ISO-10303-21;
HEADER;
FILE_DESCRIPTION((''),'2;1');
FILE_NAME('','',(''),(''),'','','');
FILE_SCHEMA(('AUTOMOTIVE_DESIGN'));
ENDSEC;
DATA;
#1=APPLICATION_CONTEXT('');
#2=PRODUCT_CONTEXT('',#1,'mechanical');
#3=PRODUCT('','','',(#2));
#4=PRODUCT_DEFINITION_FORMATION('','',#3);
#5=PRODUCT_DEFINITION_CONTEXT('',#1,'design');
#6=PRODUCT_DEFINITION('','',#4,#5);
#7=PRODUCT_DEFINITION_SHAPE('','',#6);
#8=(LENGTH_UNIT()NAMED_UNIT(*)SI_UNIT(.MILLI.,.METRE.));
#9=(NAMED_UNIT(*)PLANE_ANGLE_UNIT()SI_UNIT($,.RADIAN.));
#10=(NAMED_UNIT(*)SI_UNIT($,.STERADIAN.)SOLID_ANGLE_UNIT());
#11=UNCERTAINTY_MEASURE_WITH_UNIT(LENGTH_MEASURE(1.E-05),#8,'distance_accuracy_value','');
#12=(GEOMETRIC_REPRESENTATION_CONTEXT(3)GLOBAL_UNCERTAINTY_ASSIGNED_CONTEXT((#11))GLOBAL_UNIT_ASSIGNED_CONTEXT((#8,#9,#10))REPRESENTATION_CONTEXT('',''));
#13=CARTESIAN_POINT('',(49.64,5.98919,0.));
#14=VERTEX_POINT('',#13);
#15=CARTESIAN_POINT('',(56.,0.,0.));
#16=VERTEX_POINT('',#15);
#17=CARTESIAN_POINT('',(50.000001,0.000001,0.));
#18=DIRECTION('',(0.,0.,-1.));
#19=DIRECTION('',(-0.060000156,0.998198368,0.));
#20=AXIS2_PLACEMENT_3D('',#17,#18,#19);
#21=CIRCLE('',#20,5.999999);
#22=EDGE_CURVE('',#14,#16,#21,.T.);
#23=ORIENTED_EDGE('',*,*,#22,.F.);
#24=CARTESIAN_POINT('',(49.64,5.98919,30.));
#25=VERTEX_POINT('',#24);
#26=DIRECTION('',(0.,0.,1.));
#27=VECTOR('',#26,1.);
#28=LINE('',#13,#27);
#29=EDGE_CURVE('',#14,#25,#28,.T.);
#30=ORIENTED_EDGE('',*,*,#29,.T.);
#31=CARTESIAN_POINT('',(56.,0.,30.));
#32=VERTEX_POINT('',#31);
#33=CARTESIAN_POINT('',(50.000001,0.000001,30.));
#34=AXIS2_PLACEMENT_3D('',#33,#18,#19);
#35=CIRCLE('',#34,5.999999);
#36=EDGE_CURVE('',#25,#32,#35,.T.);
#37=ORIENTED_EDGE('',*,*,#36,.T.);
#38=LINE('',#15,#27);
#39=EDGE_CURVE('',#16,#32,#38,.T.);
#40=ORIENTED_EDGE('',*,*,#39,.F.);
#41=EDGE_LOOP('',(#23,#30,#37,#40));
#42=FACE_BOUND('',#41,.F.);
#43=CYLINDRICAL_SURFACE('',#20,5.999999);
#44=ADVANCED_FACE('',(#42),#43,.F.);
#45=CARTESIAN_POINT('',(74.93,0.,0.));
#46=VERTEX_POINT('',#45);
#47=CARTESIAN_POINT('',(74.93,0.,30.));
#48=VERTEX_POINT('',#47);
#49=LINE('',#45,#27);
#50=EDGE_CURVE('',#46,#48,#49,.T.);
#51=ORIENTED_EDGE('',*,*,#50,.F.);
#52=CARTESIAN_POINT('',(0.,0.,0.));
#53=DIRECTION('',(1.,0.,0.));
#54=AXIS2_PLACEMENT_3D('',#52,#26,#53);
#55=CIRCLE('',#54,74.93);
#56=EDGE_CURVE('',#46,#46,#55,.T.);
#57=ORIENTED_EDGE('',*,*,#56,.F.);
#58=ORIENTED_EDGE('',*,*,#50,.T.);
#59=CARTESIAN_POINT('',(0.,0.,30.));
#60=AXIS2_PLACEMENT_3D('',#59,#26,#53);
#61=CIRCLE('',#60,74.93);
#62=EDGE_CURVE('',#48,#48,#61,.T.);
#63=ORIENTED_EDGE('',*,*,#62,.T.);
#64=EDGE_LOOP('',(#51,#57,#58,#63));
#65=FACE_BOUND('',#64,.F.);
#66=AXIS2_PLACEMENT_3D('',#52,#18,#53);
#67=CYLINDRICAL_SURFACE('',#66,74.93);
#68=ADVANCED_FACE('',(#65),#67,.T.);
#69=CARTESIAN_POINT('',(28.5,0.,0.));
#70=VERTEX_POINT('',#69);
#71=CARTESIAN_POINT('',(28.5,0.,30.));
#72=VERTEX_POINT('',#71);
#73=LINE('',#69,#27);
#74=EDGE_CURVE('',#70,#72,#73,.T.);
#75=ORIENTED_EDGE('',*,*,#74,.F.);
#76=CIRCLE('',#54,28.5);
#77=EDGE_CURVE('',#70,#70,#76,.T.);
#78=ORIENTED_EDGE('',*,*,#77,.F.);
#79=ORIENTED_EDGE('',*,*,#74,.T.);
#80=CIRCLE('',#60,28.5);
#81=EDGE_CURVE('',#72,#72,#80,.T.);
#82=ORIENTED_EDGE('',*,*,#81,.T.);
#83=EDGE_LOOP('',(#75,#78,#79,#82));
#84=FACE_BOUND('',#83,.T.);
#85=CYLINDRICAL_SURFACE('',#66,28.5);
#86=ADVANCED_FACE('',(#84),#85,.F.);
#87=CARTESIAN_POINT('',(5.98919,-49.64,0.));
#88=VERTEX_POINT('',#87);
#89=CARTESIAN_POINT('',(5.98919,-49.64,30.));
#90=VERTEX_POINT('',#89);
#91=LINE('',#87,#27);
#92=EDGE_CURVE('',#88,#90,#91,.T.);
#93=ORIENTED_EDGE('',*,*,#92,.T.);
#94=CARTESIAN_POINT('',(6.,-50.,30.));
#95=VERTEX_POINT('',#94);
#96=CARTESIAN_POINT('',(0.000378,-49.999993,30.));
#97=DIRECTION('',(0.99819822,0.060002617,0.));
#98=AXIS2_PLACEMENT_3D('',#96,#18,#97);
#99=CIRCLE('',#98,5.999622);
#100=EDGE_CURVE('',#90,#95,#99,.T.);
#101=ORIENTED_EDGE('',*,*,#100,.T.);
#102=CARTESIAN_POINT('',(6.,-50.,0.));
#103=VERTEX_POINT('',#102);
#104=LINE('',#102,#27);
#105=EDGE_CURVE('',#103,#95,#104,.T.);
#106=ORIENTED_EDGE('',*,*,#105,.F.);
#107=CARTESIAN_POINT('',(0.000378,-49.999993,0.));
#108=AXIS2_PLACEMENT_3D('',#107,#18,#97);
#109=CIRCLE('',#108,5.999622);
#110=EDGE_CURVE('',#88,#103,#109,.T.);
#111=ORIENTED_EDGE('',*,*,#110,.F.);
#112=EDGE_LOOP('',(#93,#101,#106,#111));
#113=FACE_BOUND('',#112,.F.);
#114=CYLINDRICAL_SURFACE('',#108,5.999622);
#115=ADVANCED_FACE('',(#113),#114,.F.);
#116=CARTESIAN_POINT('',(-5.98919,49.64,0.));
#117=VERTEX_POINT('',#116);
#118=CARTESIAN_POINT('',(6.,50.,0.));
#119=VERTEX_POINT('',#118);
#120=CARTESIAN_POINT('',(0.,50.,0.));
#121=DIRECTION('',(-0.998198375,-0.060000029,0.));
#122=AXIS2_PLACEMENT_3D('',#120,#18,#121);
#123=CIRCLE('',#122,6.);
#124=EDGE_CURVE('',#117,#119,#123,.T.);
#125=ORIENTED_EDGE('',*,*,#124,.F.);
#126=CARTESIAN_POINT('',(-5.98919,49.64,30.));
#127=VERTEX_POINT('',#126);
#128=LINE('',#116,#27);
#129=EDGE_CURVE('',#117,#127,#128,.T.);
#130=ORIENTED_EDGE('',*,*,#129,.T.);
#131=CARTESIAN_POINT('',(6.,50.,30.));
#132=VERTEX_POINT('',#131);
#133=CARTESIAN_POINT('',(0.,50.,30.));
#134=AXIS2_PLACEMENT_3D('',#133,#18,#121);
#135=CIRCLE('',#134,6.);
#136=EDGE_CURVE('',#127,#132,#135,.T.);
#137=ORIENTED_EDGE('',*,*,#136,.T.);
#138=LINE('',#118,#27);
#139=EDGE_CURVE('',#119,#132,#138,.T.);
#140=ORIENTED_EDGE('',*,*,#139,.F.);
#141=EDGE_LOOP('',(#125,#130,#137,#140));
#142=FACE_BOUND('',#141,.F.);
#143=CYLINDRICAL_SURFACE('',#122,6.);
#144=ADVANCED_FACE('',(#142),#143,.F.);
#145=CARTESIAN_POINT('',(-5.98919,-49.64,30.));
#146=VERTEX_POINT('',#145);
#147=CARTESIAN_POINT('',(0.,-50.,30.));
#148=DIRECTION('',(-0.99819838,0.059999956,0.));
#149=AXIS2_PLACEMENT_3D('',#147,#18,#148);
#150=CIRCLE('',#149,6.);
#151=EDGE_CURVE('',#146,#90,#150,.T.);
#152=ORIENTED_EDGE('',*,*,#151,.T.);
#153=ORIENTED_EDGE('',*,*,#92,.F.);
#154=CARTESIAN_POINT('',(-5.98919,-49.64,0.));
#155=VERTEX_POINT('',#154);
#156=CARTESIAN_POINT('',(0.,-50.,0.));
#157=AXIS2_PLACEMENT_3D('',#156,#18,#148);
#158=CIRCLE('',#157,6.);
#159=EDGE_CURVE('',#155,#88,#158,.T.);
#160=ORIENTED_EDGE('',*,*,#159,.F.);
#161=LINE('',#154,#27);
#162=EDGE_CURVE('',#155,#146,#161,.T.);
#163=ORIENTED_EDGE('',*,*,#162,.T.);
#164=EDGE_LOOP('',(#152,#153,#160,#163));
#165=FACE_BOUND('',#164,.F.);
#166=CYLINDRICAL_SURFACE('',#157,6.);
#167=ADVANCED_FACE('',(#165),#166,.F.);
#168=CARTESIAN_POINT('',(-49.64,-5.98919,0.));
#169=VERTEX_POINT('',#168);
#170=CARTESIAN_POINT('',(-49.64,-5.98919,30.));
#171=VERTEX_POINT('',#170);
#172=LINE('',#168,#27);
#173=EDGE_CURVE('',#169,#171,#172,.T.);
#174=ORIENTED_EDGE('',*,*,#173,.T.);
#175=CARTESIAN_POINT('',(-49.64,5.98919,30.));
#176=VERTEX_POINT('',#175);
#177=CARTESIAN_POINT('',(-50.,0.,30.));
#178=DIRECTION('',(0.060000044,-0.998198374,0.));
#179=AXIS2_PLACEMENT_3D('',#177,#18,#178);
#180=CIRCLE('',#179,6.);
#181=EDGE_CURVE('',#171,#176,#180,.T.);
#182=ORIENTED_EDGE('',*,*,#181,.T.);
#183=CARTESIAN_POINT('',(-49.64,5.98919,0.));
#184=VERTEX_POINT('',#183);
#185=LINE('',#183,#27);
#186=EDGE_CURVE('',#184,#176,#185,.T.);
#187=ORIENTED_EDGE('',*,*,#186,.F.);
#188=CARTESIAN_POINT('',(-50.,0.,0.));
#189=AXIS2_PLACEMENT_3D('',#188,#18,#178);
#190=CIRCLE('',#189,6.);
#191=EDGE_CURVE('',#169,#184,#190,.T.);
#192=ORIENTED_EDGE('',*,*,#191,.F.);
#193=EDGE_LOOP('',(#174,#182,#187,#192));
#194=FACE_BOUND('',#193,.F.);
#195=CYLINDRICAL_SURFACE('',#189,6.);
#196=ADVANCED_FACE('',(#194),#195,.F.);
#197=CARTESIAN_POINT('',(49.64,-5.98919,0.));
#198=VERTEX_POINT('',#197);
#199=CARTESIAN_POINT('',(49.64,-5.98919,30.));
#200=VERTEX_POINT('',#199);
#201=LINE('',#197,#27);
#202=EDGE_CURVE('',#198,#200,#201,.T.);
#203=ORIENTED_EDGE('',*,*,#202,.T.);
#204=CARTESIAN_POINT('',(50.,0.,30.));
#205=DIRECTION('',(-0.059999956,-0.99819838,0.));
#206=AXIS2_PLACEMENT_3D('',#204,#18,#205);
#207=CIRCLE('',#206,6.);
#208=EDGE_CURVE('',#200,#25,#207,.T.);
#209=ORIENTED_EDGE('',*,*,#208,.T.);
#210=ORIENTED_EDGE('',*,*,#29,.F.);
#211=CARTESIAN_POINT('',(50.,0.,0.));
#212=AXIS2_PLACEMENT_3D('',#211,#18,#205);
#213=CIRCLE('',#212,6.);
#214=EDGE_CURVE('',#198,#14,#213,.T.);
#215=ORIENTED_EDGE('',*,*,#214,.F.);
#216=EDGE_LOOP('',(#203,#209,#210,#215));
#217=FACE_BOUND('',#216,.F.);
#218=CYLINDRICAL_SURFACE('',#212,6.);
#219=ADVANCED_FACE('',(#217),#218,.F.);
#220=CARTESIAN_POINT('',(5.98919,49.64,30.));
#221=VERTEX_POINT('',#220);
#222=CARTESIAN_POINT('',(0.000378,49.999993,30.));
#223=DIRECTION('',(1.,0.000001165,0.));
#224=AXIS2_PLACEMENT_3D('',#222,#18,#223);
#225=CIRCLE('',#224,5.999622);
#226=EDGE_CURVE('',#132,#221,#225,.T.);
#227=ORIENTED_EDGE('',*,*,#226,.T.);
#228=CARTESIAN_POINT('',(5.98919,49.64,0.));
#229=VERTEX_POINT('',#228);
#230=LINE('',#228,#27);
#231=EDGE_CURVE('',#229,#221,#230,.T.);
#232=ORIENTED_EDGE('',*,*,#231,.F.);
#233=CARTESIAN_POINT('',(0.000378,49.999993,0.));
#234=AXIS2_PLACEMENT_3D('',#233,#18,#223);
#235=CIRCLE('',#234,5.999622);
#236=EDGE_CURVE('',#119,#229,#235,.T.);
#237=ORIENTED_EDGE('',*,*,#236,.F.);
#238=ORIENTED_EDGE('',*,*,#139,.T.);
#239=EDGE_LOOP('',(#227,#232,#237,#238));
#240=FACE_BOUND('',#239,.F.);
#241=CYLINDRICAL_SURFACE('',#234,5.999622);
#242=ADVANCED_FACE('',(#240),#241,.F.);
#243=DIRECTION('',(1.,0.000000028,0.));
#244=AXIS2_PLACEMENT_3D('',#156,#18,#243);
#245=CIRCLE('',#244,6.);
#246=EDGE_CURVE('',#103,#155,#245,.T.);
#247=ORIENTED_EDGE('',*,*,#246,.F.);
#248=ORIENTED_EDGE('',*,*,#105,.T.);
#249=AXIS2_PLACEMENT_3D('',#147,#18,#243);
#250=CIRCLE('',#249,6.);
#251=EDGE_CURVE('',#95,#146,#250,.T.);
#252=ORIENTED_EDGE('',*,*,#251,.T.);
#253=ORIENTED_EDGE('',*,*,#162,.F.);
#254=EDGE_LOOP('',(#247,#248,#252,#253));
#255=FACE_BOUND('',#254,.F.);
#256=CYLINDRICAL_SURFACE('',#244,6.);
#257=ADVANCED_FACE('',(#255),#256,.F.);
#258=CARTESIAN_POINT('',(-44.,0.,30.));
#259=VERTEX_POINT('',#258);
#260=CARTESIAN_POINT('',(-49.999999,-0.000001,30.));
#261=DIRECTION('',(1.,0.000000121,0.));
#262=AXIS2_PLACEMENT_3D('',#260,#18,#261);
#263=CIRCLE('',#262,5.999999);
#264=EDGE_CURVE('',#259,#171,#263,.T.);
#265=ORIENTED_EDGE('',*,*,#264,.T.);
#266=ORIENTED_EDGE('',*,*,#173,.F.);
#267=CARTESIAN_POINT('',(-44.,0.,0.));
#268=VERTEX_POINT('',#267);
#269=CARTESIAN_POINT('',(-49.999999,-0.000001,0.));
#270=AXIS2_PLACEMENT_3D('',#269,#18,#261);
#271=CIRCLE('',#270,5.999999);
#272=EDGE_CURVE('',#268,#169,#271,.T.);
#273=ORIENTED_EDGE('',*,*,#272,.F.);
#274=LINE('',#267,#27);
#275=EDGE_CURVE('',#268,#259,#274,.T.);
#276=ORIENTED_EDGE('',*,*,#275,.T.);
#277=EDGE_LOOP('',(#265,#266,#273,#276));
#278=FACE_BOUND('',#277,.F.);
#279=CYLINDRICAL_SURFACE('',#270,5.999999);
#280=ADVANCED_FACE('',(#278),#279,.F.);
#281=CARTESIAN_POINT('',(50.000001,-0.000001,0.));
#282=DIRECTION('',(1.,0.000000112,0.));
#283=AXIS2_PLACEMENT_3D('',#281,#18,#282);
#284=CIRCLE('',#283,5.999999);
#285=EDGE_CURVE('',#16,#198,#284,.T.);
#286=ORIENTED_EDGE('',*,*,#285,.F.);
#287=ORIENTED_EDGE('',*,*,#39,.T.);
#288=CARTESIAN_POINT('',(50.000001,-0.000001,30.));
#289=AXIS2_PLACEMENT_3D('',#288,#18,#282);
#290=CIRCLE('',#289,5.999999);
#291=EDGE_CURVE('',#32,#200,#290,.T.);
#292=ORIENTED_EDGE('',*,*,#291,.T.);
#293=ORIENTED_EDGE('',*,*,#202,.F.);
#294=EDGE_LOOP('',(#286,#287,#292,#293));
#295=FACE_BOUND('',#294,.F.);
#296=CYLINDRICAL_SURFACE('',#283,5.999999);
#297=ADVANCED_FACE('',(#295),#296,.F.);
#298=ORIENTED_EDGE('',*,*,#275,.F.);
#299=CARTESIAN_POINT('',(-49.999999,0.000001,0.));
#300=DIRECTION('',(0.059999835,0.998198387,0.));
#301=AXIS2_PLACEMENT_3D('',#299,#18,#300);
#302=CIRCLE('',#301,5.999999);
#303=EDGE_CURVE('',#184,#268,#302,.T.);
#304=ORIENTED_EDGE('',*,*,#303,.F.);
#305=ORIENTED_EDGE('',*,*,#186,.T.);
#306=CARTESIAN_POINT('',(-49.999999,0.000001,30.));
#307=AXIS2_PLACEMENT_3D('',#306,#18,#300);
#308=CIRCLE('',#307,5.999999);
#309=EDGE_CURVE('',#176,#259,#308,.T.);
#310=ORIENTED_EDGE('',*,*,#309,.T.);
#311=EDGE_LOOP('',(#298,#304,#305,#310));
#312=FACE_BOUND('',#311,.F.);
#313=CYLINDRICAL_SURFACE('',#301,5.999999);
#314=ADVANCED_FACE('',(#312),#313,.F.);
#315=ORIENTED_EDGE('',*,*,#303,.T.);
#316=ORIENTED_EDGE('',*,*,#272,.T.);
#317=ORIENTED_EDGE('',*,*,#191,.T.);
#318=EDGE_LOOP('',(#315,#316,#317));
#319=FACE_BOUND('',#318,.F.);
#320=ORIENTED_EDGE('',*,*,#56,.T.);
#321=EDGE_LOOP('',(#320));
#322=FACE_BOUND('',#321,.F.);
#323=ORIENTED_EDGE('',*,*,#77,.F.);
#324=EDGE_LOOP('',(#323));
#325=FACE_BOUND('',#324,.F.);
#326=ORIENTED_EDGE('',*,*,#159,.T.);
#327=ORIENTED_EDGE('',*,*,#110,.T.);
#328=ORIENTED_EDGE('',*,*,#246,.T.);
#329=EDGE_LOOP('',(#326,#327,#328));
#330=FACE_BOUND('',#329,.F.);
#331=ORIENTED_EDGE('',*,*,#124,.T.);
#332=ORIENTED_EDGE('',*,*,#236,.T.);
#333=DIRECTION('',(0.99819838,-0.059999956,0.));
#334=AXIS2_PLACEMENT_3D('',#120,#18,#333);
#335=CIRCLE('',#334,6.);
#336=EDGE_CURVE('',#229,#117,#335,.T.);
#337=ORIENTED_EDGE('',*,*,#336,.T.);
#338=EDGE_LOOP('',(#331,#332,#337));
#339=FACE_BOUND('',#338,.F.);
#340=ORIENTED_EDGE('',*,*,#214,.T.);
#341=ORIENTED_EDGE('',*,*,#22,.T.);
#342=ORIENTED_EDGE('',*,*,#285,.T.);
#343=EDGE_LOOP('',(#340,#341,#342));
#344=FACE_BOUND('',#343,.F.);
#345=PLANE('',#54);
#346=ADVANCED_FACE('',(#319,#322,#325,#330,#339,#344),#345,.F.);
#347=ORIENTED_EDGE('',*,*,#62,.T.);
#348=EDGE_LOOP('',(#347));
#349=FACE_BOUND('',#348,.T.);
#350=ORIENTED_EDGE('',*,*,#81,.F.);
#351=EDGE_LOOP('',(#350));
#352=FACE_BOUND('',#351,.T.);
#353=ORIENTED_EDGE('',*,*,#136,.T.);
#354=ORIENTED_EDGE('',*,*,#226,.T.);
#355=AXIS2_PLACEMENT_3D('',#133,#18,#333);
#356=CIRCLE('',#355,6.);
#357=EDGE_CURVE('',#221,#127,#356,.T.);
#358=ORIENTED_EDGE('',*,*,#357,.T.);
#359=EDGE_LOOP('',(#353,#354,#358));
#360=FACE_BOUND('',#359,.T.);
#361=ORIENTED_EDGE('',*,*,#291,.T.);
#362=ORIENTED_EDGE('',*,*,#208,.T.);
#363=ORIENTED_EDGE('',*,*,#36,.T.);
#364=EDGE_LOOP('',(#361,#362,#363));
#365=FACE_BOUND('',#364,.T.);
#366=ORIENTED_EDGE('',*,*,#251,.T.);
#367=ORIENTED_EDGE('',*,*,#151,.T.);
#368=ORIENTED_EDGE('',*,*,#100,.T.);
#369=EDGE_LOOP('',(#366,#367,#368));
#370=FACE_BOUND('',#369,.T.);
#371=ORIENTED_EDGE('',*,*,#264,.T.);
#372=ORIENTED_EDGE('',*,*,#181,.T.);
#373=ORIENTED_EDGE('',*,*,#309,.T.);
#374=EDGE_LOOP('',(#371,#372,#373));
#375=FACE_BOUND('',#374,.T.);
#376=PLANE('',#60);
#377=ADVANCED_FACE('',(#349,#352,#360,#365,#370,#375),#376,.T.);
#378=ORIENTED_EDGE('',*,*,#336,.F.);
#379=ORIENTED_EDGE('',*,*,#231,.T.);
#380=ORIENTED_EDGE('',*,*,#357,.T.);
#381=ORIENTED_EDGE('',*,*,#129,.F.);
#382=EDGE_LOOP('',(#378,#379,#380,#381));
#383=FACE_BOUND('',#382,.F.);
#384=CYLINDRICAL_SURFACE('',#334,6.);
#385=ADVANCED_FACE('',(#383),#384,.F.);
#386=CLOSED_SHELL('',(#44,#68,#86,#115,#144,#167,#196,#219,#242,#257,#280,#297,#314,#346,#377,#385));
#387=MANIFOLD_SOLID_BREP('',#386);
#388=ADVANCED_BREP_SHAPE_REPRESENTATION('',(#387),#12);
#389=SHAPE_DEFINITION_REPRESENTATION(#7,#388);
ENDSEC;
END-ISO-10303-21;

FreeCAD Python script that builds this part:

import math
import FreeCAD as App
import Part
import Sketcher
Q = App.Units.Quantity

doc = App.newDocument("Part")
body = doc.addObject("PartDesign::Body", "Body")

# Sketch on XY plane
sketch1 = body.newObject("Sketcher::SketchObject", "Sketch")
sketch1.AttachmentSupport = (doc.getObject("XY_Plane"), [""])
sketch1.MapMode = "FlatFace"
sketch1.addGeometry(Part.Circle(App.Vector(0, 0, 0), App.Vector(0, 0, 1), 74.93), False)
sketch1.addGeometry(Part.ArcOfCircle(Part.Circle(App.Vector(0, -50, 0), App.Vector(0, 0, 1), 6), math.radians(176.560186), math.radians(360.000002)), False)
sketch1.addGeometry(Part.ArcOfCircle(Part.Circle(App.Vector(0, -50, 0), App.Vector(0, 0, 1), 6), math.radians(3.43981), math.radians(176.56019)), False)
sketch1.addGeometry(Part.ArcOfCircle(Part.Circle(App.Vector(0.000378, -49.999993, 0), App.Vector(0, 0, 1), 5.999622), math.radians(-0.000067), math.radians(3.439963)), False)
sketch1.addGeometry(Part.ArcOfCircle(Part.Circle(App.Vector(-50, 0, 0), App.Vector(0, 0, 1), 6), math.radians(86.560185), math.radians(273.439815)), False)
sketch1.addGeometry(Part.ArcOfCircle(Part.Circle(App.Vector(-49.999999, 0.000001, 0), App.Vector(0, 0, 1), 5.999999), math.radians(-0.000007), math.radians(86.560197)), False)
sketch1.addGeometry(Part.ArcOfCircle(Part.Circle(App.Vector(-49.999999, -0.000001, 0), App.Vector(0, 0, 1), 5.999999), math.radians(-86.560197), math.radians(0.000007)), False)
sketch1.addGeometry(Part.Circle(App.Vector(0, 0, 0), App.Vector(0, 0, 1), 28.5), False)
sketch1.addGeometry(Part.ArcOfCircle(Part.Circle(App.Vector(50.000001, -0.000001, 0), App.Vector(0, 0, 1), 5.999999), math.radians(-93.439822), math.radians(0.000006)), False)
sketch1.addGeometry(Part.ArcOfCircle(Part.Circle(App.Vector(50, 0, 0), App.Vector(0, 0, 1), 6), math.radians(93.43981), math.radians(266.56019)), False)
sketch1.addGeometry(Part.ArcOfCircle(Part.Circle(App.Vector(50.000001, 0.000001, 0), App.Vector(0, 0, 1), 5.999999), math.radians(-0.000006), math.radians(93.439822)), False)
sketch1.addGeometry(Part.ArcOfCircle(Part.Circle(App.Vector(0.000378, 49.999993, 0), App.Vector(0, 0, 1), 5.999622), math.radians(-3.439963), math.radians(0.000067)), False)
sketch1.addGeometry(Part.ArcOfCircle(Part.Circle(App.Vector(0, 50, 0), App.Vector(0, 0, 1), 6), math.radians(-176.56019), math.radians(-3.43981)), False)
sketch1.addGeometry(Part.ArcOfCircle(Part.Circle(App.Vector(0, 50, 0), App.Vector(0, 0, 1), 6), math.radians(-0.000002), math.radians(183.439814)), False)
sketch1.addConstraint(Sketcher.Constraint("Tangent", 1, 1, 2, 2))
sketch1.addConstraint(Sketcher.Constraint("Coincident", 2, 1, 3, 2))
sketch1.addConstraint(Sketcher.Constraint("Tangent", 3, 1, 1, 2))
sketch1.addConstraint(Sketcher.Constraint("Tangent", 4, 1, 5, 2))
sketch1.addConstraint(Sketcher.Constraint("Tangent", 5, 1, 6, 2))
sketch1.addConstraint(Sketcher.Constraint("Tangent", 6, 1, 4, 2))
sketch1.addConstraint(Sketcher.Constraint("Tangent", 8, 1, 9, 2))
sketch1.addConstraint(Sketcher.Constraint("Tangent", 9, 1, 10, 2))
sketch1.addConstraint(Sketcher.Constraint("Tangent", 10, 1, 8, 2))
sketch1.addConstraint(Sketcher.Constraint("Coincident", 11, 1, 12, 2))
sketch1.addConstraint(Sketcher.Constraint("Tangent", 12, 1, 13, 2))
sketch1.addConstraint(Sketcher.Constraint("Tangent", 13, 1, 11, 2))
sketch1.addConstraint(Sketcher.Constraint("Coincident", 0, 3, -1, 1))
sketch1.addConstraint(Sketcher.Constraint("Coincident", 7, 3, -1, 1))
sketch1.addConstraint(Sketcher.Constraint("Equal", 2, 4))
sketch1.addConstraint(Sketcher.Constraint("Equal", 6, 8))
sketch1.addConstraint(Sketcher.Constraint("Equal", 3, 11))
sketch1.addConstraint(Sketcher.Constraint("Equal", 10, 12))
sketch1.addConstraint(Sketcher.Constraint("Symmetric", 4, 3, 8, 3, -1, 1))
sketch1.addConstraint(Sketcher.Constraint("Symmetric", 1, 3, 12, 3, -1, 1))
sketch1.addConstraint(Sketcher.Constraint("Symmetric", 1, 1, 2, 1, -2))
sketch1.addConstraint(Sketcher.Constraint("Symmetric", 6, 1, 8, 1, -2))
sketch1.addConstraint(Sketcher.Constraint("PointOnObject", 5, 1, -1))
sketch1.addConstraint(Sketcher.Constraint("PointOnObject", 10, 1, -1))
sketch1.addConstraint(Sketcher.Constraint("Horizontal", 2, 3, 3, 1))
sketch1.addConstraint(Sketcher.Constraint("Horizontal", 4, 1, 9, 1))
sketch1.addConstraint(Sketcher.Constraint("Horizontal", 11, 1, 12, 1))
sketch1.addConstraint(Sketcher.Constraint("Horizontal", 12, 3, 13, 1))
sketch1.addConstraint(Sketcher.Constraint("Vertical", 4, 1, 6, 1))
sketch1.addConstraint(Sketcher.Constraint("Vertical", 2, 1, 11, 1))
sketch1.addConstraint(Sketcher.Constraint("Diameter", 7, Q("57 mm")))
sketch1.addConstraint(Sketcher.Constraint("Radius", 1, Q("6 mm")))
sketch1.addConstraint(Sketcher.Constraint("Diameter", 0, Q("149.86 mm")))
sketch1.addConstraint(Sketcher.Constraint("DistanceY", 1, 3, -1, 1, Q("50 mm")))
sketch1.addConstraint(Sketcher.Constraint("DistanceX", 4, 3, -1, 1, Q("50 mm")))
sketch1.addConstraint(Sketcher.Constraint("DistanceY", 1, 1, -1, 1, Q("49.64 mm")))
sketch1.addConstraint(Sketcher.Constraint("DistanceX", 4, 1, -1, 1, Q("49.64 mm")))
sketch1.addConstraint(Sketcher.Constraint("Radius", 3, Q("5.999622 mm")))
pad1 = body.newObject("PartDesign::Pad", "Pad")
pad1.Profile = sketch1
pad1.Length = 30

doc.recompute()
